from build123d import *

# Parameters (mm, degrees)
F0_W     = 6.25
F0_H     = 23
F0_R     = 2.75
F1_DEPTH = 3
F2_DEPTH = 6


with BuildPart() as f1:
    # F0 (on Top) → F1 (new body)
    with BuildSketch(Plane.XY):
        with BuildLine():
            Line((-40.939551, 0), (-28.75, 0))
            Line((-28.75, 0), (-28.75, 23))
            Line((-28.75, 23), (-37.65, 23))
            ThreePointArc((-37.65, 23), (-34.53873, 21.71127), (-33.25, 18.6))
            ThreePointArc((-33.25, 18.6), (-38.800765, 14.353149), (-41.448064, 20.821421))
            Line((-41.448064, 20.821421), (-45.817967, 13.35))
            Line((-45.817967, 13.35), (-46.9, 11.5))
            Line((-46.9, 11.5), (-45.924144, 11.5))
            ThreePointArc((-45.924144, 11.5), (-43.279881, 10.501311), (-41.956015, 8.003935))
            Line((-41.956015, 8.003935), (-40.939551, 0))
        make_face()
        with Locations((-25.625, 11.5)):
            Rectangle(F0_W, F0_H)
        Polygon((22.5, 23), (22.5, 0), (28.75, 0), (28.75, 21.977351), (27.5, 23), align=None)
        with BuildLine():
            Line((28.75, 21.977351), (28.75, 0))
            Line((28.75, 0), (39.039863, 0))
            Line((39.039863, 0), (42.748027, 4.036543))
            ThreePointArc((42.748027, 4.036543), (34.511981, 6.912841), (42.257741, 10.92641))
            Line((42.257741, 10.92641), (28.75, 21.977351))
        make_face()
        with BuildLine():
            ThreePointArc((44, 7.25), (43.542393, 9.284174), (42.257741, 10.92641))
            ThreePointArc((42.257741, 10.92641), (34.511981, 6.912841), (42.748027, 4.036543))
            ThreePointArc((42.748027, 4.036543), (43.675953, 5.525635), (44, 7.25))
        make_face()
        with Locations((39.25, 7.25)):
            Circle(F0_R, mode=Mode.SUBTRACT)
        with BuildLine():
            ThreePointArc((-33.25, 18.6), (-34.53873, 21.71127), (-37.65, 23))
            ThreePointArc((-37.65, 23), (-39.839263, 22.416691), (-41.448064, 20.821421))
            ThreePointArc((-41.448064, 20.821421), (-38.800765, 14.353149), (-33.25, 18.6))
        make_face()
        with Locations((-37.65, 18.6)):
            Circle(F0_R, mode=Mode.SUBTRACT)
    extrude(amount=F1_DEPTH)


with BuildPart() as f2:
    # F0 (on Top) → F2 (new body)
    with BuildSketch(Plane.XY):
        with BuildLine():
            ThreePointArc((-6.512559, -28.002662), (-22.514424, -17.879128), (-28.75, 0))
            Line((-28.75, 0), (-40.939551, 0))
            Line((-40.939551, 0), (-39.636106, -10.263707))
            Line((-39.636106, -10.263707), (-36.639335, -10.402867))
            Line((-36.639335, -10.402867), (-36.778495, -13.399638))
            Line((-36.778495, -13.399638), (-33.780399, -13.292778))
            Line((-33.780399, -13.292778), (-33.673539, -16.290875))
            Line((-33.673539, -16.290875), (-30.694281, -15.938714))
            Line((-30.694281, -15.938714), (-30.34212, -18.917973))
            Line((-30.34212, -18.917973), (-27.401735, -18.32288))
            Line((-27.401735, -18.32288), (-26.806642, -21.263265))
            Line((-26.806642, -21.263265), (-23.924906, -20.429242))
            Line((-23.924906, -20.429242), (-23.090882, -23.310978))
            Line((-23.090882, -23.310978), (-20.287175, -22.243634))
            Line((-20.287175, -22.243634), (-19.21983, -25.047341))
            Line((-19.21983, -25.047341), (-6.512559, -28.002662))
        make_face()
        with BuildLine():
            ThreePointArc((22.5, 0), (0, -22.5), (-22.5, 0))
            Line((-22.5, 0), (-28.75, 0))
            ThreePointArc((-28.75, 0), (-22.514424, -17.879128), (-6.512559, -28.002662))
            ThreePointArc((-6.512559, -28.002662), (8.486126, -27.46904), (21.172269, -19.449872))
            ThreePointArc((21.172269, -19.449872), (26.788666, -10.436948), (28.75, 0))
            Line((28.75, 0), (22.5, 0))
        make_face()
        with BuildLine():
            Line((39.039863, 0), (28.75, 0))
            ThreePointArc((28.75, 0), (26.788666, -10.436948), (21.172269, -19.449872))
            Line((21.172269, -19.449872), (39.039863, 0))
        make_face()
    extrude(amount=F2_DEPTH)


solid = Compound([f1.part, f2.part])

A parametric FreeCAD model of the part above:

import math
import FreeCAD as App
import Part
import Sketcher

V = App.Vector

doc = App.newDocument("Part")
body = doc.addObject("PartDesign::Body", "Body")
body.AllowCompound = True

# Sketch on XY plane
sketch1 = doc.addObject("Sketcher::SketchObject", "Sketch")
body.addObject(sketch1)
sketch1.AttachmentSupport = (doc.XY_Plane, [""])
sketch1.MapMode = "FlatFace"
sketch1.addGeometry([
    Part.LineSegment(V(-40.9, 0, 0), V(-22.5, 0, 0)),  # 0
    Part.LineSegment(V(-22.5, 0, 0), V(-22.5, 23, 0)),  # 1
    Part.LineSegment(V(-22.5, 23, 0), V(-37.6, 23, 0)),  # 2
    Part.ArcOfCircle(Part.Circle(V(-37.7, 18.6, 0), V(0, 0, 1), 4.4), math.radians(90), math.radians(150)),  # 3
    Part.LineSegment(V(-41.4, 20.8, 0), V(-45.8, 13.3, 0)),  # 4
    Part.LineSegment(V(-45.8, 13.3, 0), V(-46.9, 11.5, 0)),  # 5
    Part.LineSegment(V(-46.9, 11.5, 0), V(-45.9, 11.5, 0)),  # 6
    Part.ArcOfCircle(Part.Circle(V(-45.9, 7.5, 0), V(0, 0, 1), 4), math.radians(7), math.radians(90)),  # 7
    Part.LineSegment(V(-42, 8, 0), V(-40.9, 0, 0)),  # 8
    Part.Circle(V(-37.6, 18.6, 0), V(0, 0, 1), 2.8),  # 9
    Part.LineSegment(V(22.5, 23, 0), V(22.5, 0, 0)),  # 10
    Part.LineSegment(V(22.5, 0, 0), V(39, 0, 0)),  # 11
    Part.LineSegment(V(39, 0, 0), V(42.7, 4, 0)),  # 12
    Part.ArcOfCircle(Part.Circle(V(39.2, 7.3, 0), V(0, 0, 1), 4.8), math.radians(-43), math.radians(0)),  # 13
    Part.ArcOfCircle(Part.Circle(V(39.3, 7.3, 0), V(0, 0, 1), 4.7), math.radians(0), math.radians(51)),  # 14
    Part.LineSegment(V(42.3, 10.9, 0), V(28.8, 22, 0)),  # 15
    Part.LineSegment(V(28.8, 22, 0), V(27.5, 23, 0)),  # 16
    Part.LineSegment(V(27.5, 23, 0), V(22.5, 23, 0)),  # 17
    Part.Circle(V(39.2, 7.2, 0), V(0, 0, 1), 2.8),  # 18
], False)
sketch1.addConstraint([
    Sketcher.Constraint("Coincident", 0, 2, 1, 1),
    Sketcher.Constraint("Coincident", 1, 2, 2, 1),
    Sketcher.Constraint("Tangent", 2, 2, 3, 1),
    Sketcher.Constraint("Tangent", 3, 2, 4, 1),
    Sketcher.Constraint("Coincident", 4, 2, 5, 1),
    Sketcher.Constraint("Coincident", 5, 2, 6, 1),
    Sketcher.Constraint("Tangent", 6, 2, 7, 2),
    Sketcher.Constraint("Tangent", 7, 1, 8, 1),
    Sketcher.Constraint("Coincident", 8, 2, 0, 1),
    Sketcher.Constraint("Coincident", 10, 2, 11, 1),
    Sketcher.Constraint("Coincident", 11, 2, 12, 1),
    Sketcher.Constraint("Tangent", 12, 2, 13, 1),
    Sketcher.Constraint("Tangent", 13, 2, 14, 1),
    Sketcher.Constraint("Tangent", 14, 2, 15, 1),
    Sketcher.Constraint("Coincident", 15, 2, 16, 1),
    Sketcher.Constraint("Coincident", 16, 2, 17, 1),
    Sketcher.Constraint("Coincident", 17, 2, 10, 1),
    Sketcher.Constraint("Horizontal", 0),
    Sketcher.Constraint("Vertical", 1),
    Sketcher.Constraint("Horizontal", 2),
    Sketcher.Constraint("Horizontal", 6),
    Sketcher.Constraint("Vertical", 10),
    Sketcher.Constraint("Horizontal", 11),
    Sketcher.Constraint("Horizontal", 17),
    Sketcher.Constraint("Coincident", 9, 3, 3, 3),
    Sketcher.Constraint("Coincident", 18, 3, 13, 3),
    Sketcher.Constraint("Equal", 9, 18),
    Sketcher.Constraint("Symmetric", 0, 2, 10, 2, -1, 1),
    Sketcher.Constraint("PointOnObject", 0, 2, -1),
    Sketcher.Constraint("Parallel", 4, 5),
    Sketcher.Constraint("Parallel", 15, 16),
    Sketcher.Constraint("Horizontal", 18, 3, 13, 2),
    Sketcher.Constraint("Horizontal", 2, 2, 16, 2),
    Sketcher.Constraint("Radius", 7, 4.000002),
    Sketcher.Constraint("Diameter", 9, 5.5),
    Sketcher.Constraint("Radius", 3, 4.399999),
    Sketcher.Constraint("DistanceX", 17, 2, 17, 1, 5.0),
    Sketcher.Constraint("DistanceY", 1, 1, 1, 2, 23.0),
    Sketcher.Constraint("DistanceX", -1, 1, 13, 2, 44.0),
    Sketcher.Constraint("DistanceX", 0, 2, 10, 2, 45.0),
    Sketcher.Constraint("DistanceX", 2, 2, 2, 1, 15.15),
    Sketcher.Constraint("DistanceY", -1, 1, 7, 3, 7.499998),
    Sketcher.Constraint("DistanceX", 5, 2, -1, 1, 46.9),
    Sketcher.Constraint("DistanceX", 9, 3, 18, 3, 76.9),
    Sketcher.Constraint("DistanceX", 15, 2, 18, 3, 10.5),
    Sketcher.Constraint("DistanceY", -1, 1, 14, 3, 7.250001),
    Sketcher.Constraint("DistanceY", -1, 1, 4, 2, 13.35),
    Sketcher.Constraint("Radius", 14, 4.749997),
    Sketcher.Constraint("DistanceX", 0, 1, 0, 2, 18.439551),
    Sketcher.Constraint("Distance", 8, 8.06822),
    Sketcher.Constraint("DistanceX", 11, 1, 11, 2, 16.539863),
])
pad1 = doc.addObject("PartDesign::Pad", "Pad")
body.addObject(pad1)
pad1.Profile = sketch1
pad1.Length = 3
body2 = doc.addObject("PartDesign::Body", "Body001")

# Sketch on XY plane
sketch2 = doc.addObject("Sketcher::SketchObject", "Sketch001")
body2.addObject(sketch2)
sketch2.AttachmentSupport = (doc.getObject("XY_Plane001"), [""])
sketch2.MapMode = "FlatFace"
sketch2.addGeometry([
    Part.LineSegment(V(-40.9, 0, 0), V(-39.6, -10.3, 0)),  # 0
    Part.LineSegment(V(-39.6, -10.3, 0), V(-36.6, -10.4, 0)),  # 1
    Part.LineSegment(V(-36.6, -10.4, 0), V(-36.8, -13.4, 0)),  # 2
    Part.LineSegment(V(-36.8, -13.4, 0), V(-33.8, -13.3, 0)),  # 3
    Part.LineSegment(V(-33.8, -13.3, 0), V(-33.7, -16.3, 0)),  # 4
    Part.LineSegment(V(-33.7, -16.3, 0), V(-30.7, -15.9, 0)),  # 5
    Part.LineSegment(V(-30.7, -15.9, 0), V(-30.3, -18.9, 0)),  # 6
    Part.LineSegment(V(-30.3, -18.9, 0), V(-27.4, -18.3, 0)),  # 7
    Part.LineSegment(V(-27.4, -18.3, 0), V(-26.8, -21.3, 0)),  # 8
    Part.LineSegment(V(-26.8, -21.3, 0), V(-23.9, -20.4, 0)),  # 9
    Part.LineSegment(V(-23.9, -20.4, 0), V(-23.1, -23.3, 0)),  # 10
    Part.LineSegment(V(-23.1, -23.3, 0), V(-20.3, -22.2, 0)),  # 11
    Part.LineSegment(V(-20.3, -22.2, 0), V(-19.2, -25, 0)),  # 12
    Part.LineSegment(V(-19.2, -25, 0), V(-6.5, -28, 0)),  # 13
    Part.ArcOfCircle(Part.Circle(V(0, 0, 0), V(0, 0, 1), 28.8), math.radians(-103), math.radians(-43)),  # 14
    Part.LineSegment(V(21.2, -19.4, 0), V(39, 0, 0)),  # 15
    Part.LineSegment(V(39, 0, 0), V(22.5, 0, 0)),  # 16
    Part.ArcOfCircle(Part.Circle(V(0, 0, 0), V(0, 0, 1), 22.5), math.radians(180), math.radians(360)),  # 17
    Part.LineSegment(V(-22.5, 0, 0), V(-40.9, 0, 0)),  # 18
], False)
sketch2.addConstraint([
    Sketcher.Constraint("Coincident", 0, 2, 1, 1),
    Sketcher.Constraint("Coincident", 1, 2, 2, 1),
    Sketcher.Constraint("Coincident", 2, 2, 3, 1),
    Sketcher.Constraint("Coincident", 3, 2, 4, 1),
    Sketcher.Constraint("Coincident", 4, 2, 5, 1),
    Sketcher.Constraint("Coincident", 5, 2, 6, 1),
    Sketcher.Constraint("Coincident", 6, 2, 7, 1),
    Sketcher.Constraint("Coincident", 7, 2, 8, 1),
    Sketcher.Constraint("Coincident", 8, 2, 9, 1),
    Sketcher.Constraint("Coincident", 9, 2, 10, 1),
    Sketcher.Constraint("Coincident", 10, 2, 11, 1),
    Sketcher.Constraint("Coincident", 11, 2, 12, 1),
    Sketcher.Constraint("Coincident", 12, 2, 13, 1),
    Sketcher.Constraint("Tangent", 13, 2, 14, 1),
    Sketcher.Constraint("Tangent", 14, 2, 15, 1),
    Sketcher.Constraint("Coincident", 15, 2, 16, 1),
    Sketcher.Constraint("Coincident", 16, 2, 17, 2),
    Sketcher.Constraint("Coincident", 17, 1, 18, 1),
    Sketcher.Constraint("Coincident", 18, 2, 0, 1),
    Sketcher.Constraint("Horizontal", 16),
    Sketcher.Constraint("Horizontal", 18),
    Sketcher.Constraint("Coincident", 14, 3, -1, 1),
    Sketcher.Constraint("Coincident", 17, 3, -1, 1),
    Sketcher.Constraint("PointOnObject", 15, 2, -1),
    Sketcher.Constraint("PointOnObject", 17, 1, -1),
    Sketcher.Constraint("Perpendicular", 1, 2),
    Sketcher.Constraint("Perpendicular", 3, 4),
    Sketcher.Constraint("Perpendicular", 5, 6),
    Sketcher.Constraint("Perpendicular", 7, 8),
    Sketcher.Constraint("Perpendicular", 9, 10),
    Sketcher.Constraint("Perpendicular", 11, 12),
    Sketcher.Constraint("Equal", 1, 2),
    Sketcher.Constraint("Equal", 2, 3),
    Sketcher.Constraint("Equal", 3, 4),
    Sketcher.Constraint("Equal", 4, 5),
    Sketcher.Constraint("Equal", 5, 6),
    Sketcher.Constraint("Equal", 6, 7),
    Sketcher.Constraint("Equal", 7, 8),
    Sketcher.Constraint("Equal", 8, 9),
    Sketcher.Constraint("Equal", 9, 10),
    Sketcher.Constraint("Equal", 10, 11),
    Sketcher.Constraint("Equal", 11, 12),
    Sketcher.Constraint("Radius", 17, 22.5),
    Sketcher.Constraint("Radius", 14, 28.750001),
    Sketcher.Constraint("Distance", 1, 3.0),
    Sketcher.Constraint("DistanceX", 18, 2, 18, 1, 18.439551),
    Sketcher.Constraint("DistanceX", 3, 2, -1, 1, 33.780399),
    Sketcher.Constraint("DistanceY", 6, 2, 4, 2, 2.627098),
    Sketcher.Constraint("DistanceX", 5, 2, 10, 2, 7.603399),
    Sketcher.Constraint("DistanceY", 12, 2, 9, 2, 4.618099),
    Sketcher.Constraint("DistanceX", 12, 2, 14, 2, 40.392099),
    Sketcher.Constraint("Distance", 0, 10.346142),
    Sketcher.Constraint("DistanceX", 16, 2, 16, 1, 16.539863),
    Sketcher.Constraint("DistanceX", 4, 2, -1, 1, 33.673539),
    Sketcher.Constraint("DistanceY", 7, 2, -1, 1, 18.32288),
])
pad2 = doc.addObject("PartDesign::Pad", "Pad001")
body2.addObject(pad2)
pad2.Profile = sketch2
pad2.Length = 6

doc.recompute()
